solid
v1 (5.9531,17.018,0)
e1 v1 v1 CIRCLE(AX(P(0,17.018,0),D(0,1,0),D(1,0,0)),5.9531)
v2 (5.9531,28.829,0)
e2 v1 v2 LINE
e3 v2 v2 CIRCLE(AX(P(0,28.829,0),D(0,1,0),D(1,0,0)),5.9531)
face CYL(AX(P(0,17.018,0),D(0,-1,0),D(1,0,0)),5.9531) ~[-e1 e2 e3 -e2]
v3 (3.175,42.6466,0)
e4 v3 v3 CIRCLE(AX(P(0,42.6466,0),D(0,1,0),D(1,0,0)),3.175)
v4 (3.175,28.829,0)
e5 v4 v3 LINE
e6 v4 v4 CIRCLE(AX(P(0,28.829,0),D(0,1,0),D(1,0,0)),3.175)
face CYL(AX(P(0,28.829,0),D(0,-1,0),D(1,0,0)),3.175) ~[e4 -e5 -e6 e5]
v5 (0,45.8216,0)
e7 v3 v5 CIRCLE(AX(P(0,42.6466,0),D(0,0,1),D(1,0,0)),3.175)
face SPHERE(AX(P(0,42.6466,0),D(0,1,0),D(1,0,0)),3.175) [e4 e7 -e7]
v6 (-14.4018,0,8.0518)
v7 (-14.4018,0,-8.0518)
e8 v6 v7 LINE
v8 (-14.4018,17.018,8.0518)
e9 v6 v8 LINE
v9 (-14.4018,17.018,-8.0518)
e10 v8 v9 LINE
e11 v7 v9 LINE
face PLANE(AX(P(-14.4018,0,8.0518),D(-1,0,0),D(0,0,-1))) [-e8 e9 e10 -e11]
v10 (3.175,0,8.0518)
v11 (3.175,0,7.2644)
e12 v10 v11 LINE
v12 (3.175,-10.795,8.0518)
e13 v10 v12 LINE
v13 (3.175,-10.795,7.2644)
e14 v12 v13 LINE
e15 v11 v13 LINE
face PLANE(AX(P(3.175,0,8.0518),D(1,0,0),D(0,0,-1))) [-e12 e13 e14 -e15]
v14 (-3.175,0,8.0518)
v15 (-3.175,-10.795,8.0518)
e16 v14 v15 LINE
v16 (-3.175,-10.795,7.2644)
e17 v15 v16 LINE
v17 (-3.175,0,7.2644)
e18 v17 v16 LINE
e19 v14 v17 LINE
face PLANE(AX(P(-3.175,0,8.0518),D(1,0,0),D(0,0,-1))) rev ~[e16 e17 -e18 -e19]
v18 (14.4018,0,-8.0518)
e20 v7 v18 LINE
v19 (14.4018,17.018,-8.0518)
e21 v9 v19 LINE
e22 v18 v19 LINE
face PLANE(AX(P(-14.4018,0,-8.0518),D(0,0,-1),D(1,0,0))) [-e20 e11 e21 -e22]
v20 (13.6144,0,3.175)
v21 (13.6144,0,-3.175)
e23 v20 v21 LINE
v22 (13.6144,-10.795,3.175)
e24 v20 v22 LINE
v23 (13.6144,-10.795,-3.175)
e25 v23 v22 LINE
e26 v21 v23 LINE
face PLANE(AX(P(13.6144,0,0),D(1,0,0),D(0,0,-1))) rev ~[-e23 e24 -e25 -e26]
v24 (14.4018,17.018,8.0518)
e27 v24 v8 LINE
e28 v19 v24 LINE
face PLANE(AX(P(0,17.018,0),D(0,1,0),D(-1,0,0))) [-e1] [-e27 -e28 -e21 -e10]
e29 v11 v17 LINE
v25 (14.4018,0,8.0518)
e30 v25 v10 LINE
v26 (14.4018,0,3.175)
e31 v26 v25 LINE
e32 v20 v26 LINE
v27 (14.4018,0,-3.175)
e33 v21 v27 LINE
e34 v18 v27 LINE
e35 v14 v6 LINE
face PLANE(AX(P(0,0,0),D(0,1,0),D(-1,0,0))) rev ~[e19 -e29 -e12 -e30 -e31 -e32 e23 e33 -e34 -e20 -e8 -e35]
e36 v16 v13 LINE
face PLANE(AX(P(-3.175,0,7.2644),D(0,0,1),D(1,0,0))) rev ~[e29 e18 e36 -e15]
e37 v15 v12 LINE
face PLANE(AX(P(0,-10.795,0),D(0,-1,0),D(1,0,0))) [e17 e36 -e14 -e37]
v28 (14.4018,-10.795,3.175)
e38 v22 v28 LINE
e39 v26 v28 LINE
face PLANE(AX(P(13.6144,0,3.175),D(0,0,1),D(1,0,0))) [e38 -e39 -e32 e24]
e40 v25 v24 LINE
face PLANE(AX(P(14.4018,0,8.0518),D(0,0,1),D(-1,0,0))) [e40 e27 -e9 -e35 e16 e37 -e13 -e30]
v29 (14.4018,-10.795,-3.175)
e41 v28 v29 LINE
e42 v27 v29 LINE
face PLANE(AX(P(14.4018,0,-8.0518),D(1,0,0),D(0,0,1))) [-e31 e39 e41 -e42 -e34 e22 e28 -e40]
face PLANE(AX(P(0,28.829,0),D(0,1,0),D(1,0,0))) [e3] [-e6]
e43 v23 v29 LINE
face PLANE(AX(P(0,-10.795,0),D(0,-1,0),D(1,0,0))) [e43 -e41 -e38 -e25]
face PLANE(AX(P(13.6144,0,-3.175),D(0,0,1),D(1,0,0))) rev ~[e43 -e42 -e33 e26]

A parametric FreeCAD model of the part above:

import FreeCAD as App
import Part
import Sketcher

V = App.Vector
Q = App.Units.Quantity


def edges_at(feature, points):
    """Names of the edges that pass closest to the given points."""
    edges = feature.Shape.Edges
    near = lambda p: min(range(len(edges)), key=lambda i: edges[i].distToShape(Part.Vertex(*p))[0])
    return sorted({f"Edge{near(p) + 1}" for p in points})

doc = App.newDocument("Part")
params = doc.addObject("Spreadsheet::Sheet", "Params")
for row, (alias, value) in enumerate([
    ("sketch1_width", "1.134 in"),
    ("sketch1_height", "0.634 in"),
    ("pad1_length", "0.67 in"),
    ("sketch2_diameter", "0.468748 in"),
    ("pad2_length", "0.465 in"),
    ("sketch3_diameter", "0.25 in"),
    ("pad3_length", "0.669 in"),
    ("fillet_radius", "0.125 in"),
    ("sketch4_height", "0.031 in"),
    ("pad4_length", "0.425 in"),
    ("sketch5_width", "0.031 in"),
    ("pad5_length", "0.425 in"),
], start=1):
    params.set(f"A{row}", alias)
    params.set(f"B{row}", "=" + value)
    params.setAlias(f"B{row}", alias)

body = doc.addObject("PartDesign::Body", "Body")

# Sketch on XZ plane
sketch1 = body.newObject("Sketcher::SketchObject", "Sketch")
sketch1.AttachmentSupport = (doc.getObject("XZ_Plane"), [""])
sketch1.MapMode = "FlatFace"
sketch1.addGeometry([
    Part.LineSegment(V(-14, 8, 0), V(14, 8, 0)),
    Part.LineSegment(V(14, 8, 0), V(14, -8, 0)),
    Part.LineSegment(V(14, -8, 0), V(-14, -8, 0)),
    Part.LineSegment(V(-14, -8, 0), V(-14, 8, 0)),
], False)
sketch1.addConstraint([
    Sketcher.Constraint("Coincident", 0, 2, 1, 1),
    Sketcher.Constraint("Coincident", 1, 2, 2, 1),
    Sketcher.Constraint("Coincident", 2, 2, 3, 1),
    Sketcher.Constraint("Coincident", 3, 2, 0, 1),
    Sketcher.Constraint("Horizontal", 0),
    Sketcher.Constraint("Vertical", 1),
    Sketcher.Constraint("Horizontal", 2),
    Sketcher.Constraint("Vertical", 3),
    Sketcher.Constraint("Symmetric", 0, 2, 2, 2, -1, 1),
    Sketcher.Constraint("DistanceX", 0, 1, 0, 2, Q("1.134 in")),
    Sketcher.Constraint("DistanceY", 1, 2, 1, 1, Q("0.634 in")),
])
sketch1.setExpression("Constraints[9]", "Params.sketch1_width")
sketch1.setExpression("Constraints[10]", "Params.sketch1_height")
pad1 = body.newObject("PartDesign::Pad", "Pad")
pad1.Profile = sketch1
pad1.setExpression("Length", "Params.pad1_length")
pad1.Reversed = True

# Sketch on XZ plane
sketch2 = body.newObject("Sketcher::SketchObject", "Sketch001")
sketch2.AttachmentSupport = (doc.getObject("XZ_Plane"), [""])
sketch2.MapMode = "FlatFace"
sketch2.AttachmentOffset = App.Placement(V(0, 0, -0.67 * 25.4), App.Rotation())
sketch2.addGeometry(Part.Circle(V(0, 0, 0), V(0, 0, 1), 6), False)
sketch2.addConstraint([
    Sketcher.Constraint("Coincident", 0, 3, -1, 1),
    Sketcher.Constraint("Diameter", 0, Q("0.468748 in")),
])
sketch2.setExpression("Constraints[1]", "Params.sketch2_diameter")
pad2 = body.newObject("PartDesign::Pad", "Pad001")
pad2.Profile = sketch2
pad2.setExpression("Length", "Params.pad2_length")
pad2.Reversed = True

# Sketch on XZ plane
sketch3 = body.newObject("Sketcher::SketchObject", "Sketch002")
sketch3.AttachmentSupport = (doc.getObject("XZ_Plane"), [""])
sketch3.MapMode = "FlatFace"
sketch3.AttachmentOffset = App.Placement(V(0, 0, -1.135 * 25.4), App.Rotation())
sketch3.addGeometry(Part.Circle(V(0, 0, 0), V(0, 0, 1), 3.2), False)
sketch3.addConstraint([
    Sketcher.Constraint("Coincident", 0, 3, -1, 1),
    Sketcher.Constraint("Diameter", 0, Q("0.25 in")),
])
sketch3.setExpression("Constraints[1]", "Params.sketch3_diameter")
pad3 = body.newObject("PartDesign::Pad", "Pad002")
pad3.Profile = sketch3
pad3.setExpression("Length", "Params.pad3_length")
pad3.Reversed = True
doc.recompute()

fillet = body.newObject("PartDesign::Fillet", "Fillet")
fillet.Base = (pad3, edges_at(pad3, [(-3.175, 45.822, 0)]))
fillet.setExpression("Radius", "Params.fillet_radius")

# Sketch on XZ plane
sketch4 = body.newObject("Sketcher::SketchObject", "Sketch003")
sketch4.AttachmentSupport = (doc.getObject("XZ_Plane"), [""])
sketch4.MapMode = "FlatFace"
sketch4.addGeometry([
    Part.LineSegment(V(-3.2, 8.1, 0), V(-3.2, 7.3, 0)),
    Part.LineSegment(V(-3.2, 7.3, 0), V(3.2, 7.3, 0)),
    Part.LineSegment(V(3.2, 7.3, 0), V(3.2, 8.1, 0)),
    Part.LineSegment(V(3.2, 8.1, 0), V(-3.2, 8.1, 0)),
], False)
sketch4.addConstraint([
    Sketcher.Constraint("Coincident", 0, 2, 1, 1),
    Sketcher.Constraint("Coincident", 1, 2, 2, 1),
    Sketcher.Constraint("Coincident", 2, 2, 3, 1),
    Sketcher.Constraint("Coincident", 3, 2, 0, 1),
    Sketcher.Constraint("Vertical", 0),
    Sketcher.Constraint("Horizontal", 1),
    Sketcher.Constraint("Vertical", 2),
    Sketcher.Constraint("Horizontal", 3),
    Sketcher.Constraint("DistanceY", 0, 2, 0, 1, Q("0.031 in")),
    Sketcher.Constraint("DistanceX", 0, 2, -1, 1, Q("0.125 in")),
    Sketcher.Constraint("DistanceX", -1, 1, 1, 2, Q("0.125 in")),
    Sketcher.Constraint("DistanceY", -1, 1, 0, 2, Q("0.286 in")),
])
sketch4.setExpression("Constraints[8]", "Params.sketch4_height")
pad4 = body.newObject("PartDesign::Pad", "Pad003")
pad4.Profile = sketch4
pad4.setExpression("Length", "Params.pad4_length")

# Sketch on XZ plane
sketch5 = body.newObject("Sketcher::SketchObject", "Sketch004")
sketch5.AttachmentSupport = (doc.getObject("XZ_Plane"), [""])
sketch5.MapMode = "FlatFace"
sketch5.addGeometry([
    Part.LineSegment(V(13.6, -3.2, 0), V(14.4, -3.2, 0)),
    Part.LineSegment(V(14.4, -3.2, 0), V(14.4, 3.2, 0)),
    Part.LineSegment(V(14.4, 3.2, 0), V(13.6, 3.2, 0)),
    Part.LineSegment(V(13.6, 3.2, 0), V(13.6, -3.2, 0)),
], False)
sketch5.addConstraint([
    Sketcher.Constraint("Coincident", 0, 2, 1, 1),
    Sketcher.Constraint("Coincident", 1, 2, 2, 1),
    Sketcher.Constraint("Coincident", 2, 2, 3, 1),
    Sketcher.Constraint("Coincident", 3, 2, 0, 1),
    Sketcher.Constraint("Horizontal", 0),
    Sketcher.Constraint("Vertical", 1),
    Sketcher.Constraint("Horizontal", 2),
    Sketcher.Constraint("Vertical", 3),
    Sketcher.Constraint("DistanceX", 0, 1, 0, 2, Q("0.031 in")),
    Sketcher.Constraint("DistanceY", 0, 2, -1, 1, Q("0.125 in")),
    Sketcher.Constraint("DistanceY", -1, 1, 1, 2, Q("0.125 in")),
    Sketcher.Constraint("DistanceX", -1, 1, 0, 2, Q("0.567 in")),
])
sketch5.setExpression("Constraints[8]", "Params.sketch5_width")
pad5 = body.newObject("PartDesign::Pad", "Pad004")
pad5.Profile = sketch5
pad5.setExpression("Length", "Params.pad5_length")

doc.recompute()
